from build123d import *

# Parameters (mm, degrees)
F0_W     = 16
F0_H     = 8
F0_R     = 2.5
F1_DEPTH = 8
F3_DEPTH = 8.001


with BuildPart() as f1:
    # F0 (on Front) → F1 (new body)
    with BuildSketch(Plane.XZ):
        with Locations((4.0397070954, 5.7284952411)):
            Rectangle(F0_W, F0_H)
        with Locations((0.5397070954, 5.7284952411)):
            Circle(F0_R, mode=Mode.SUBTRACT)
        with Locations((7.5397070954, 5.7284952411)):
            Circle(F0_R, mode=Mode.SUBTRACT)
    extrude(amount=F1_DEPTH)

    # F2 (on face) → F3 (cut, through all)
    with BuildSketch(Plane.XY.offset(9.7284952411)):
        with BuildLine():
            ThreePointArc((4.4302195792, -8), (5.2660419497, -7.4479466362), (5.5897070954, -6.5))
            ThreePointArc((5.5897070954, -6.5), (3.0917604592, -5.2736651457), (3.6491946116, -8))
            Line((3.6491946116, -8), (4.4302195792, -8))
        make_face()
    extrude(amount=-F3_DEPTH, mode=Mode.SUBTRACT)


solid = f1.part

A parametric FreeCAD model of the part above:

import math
import FreeCAD as App
import Part
import Sketcher

V = App.Vector


def add_polygon(sketch, points):
    """Adds a closed chain of lines whose ends are joined by coincident constraints."""
    first, n = sketch.GeometryCount, len(points)
    for a, b in zip(points, points[1:] + points[:1]):
        sketch.addGeometry(Part.LineSegment(App.Vector(*a, 0), App.Vector(*b, 0)), False)
    for i in range(n):
        sketch.addConstraint(Sketcher.Constraint("Coincident", first + i, 2, first + (i + 1) % n, 1))

doc = App.newDocument("Part")
body = doc.addObject("PartDesign::Body", "Body")

sketch1 = body.newObject("Sketcher::SketchObject", "Sketch")
sketch1.AttachmentSupport = (doc.getObject("XZ_Plane"), [""])
sketch1.MapMode = "FlatFace"
add_polygon(sketch1, [(-4, 9.7), (-4, 1.7), (12, 1.7), (12, 9.7)])
sketch1.addGeometry(Part.Circle(V(0.5, 5.7, 0), V(0, 0, 1), 2.5), False)
sketch1.addGeometry(Part.Circle(V(7.5, 5.7, 0), V(0, 0, 1), 2.5), False)
sketch1.addConstraint(Sketcher.Constraint("Vertical", 0))
sketch1.addConstraint(Sketcher.Constraint("Horizontal", 1))
sketch1.addConstraint(Sketcher.Constraint("Vertical", 2))
sketch1.addConstraint(Sketcher.Constraint("Horizontal", 3))
sketch1.addConstraint(Sketcher.Constraint("Equal", 4, 5))
sketch1.addConstraint(Sketcher.Constraint("Horizontal", 4, 3, 5, 3))
sketch1.addConstraint(Sketcher.Constraint("Diameter", 4, 5.0))
sketch1.addConstraint(Sketcher.Constraint("DistanceX", 1, 1, 1, 2, 16.0))
sketch1.addConstraint(Sketcher.Constraint("DistanceY", 0, 2, 0, 1, 8.0))
sketch1.addConstraint(Sketcher.Constraint("DistanceX", 4, 3, 5, 3, 7.0))
sketch1.addConstraint(Sketcher.Constraint("DistanceY", 0, 2, 4, 3, 4.0))
sketch1.addConstraint(Sketcher.Constraint("DistanceX", 0, 2, 4, 3, 4.5))
sketch1.addConstraint(Sketcher.Constraint("DistanceX", -1, 1, 4, 3, 0.539707))
sketch1.addConstraint(Sketcher.Constraint("DistanceY", -1, 1, 4, 3, 5.728495))
pad1 = body.newObject("PartDesign::Pad", "Pad")
pad1.Profile = sketch1
pad1.Length = 8

sketch2 = body.newObject("Sketcher::SketchObject", "Sketch001")
sketch2.AttachmentSupport = (doc.getObject("XY_Plane"), [""])
sketch2.MapMode = "FlatFace"
sketch2.AttachmentOffset = App.Placement(V(0, 0, 9.728495), App.Rotation())
sketch2.addGeometry(Part.ArcOfCircle(Part.Circle(V(4, -6.5, 0), V(0, 0, 1), 1.6), math.radians(-75), math.radians(0)), False)
sketch2.addGeometry(Part.ArcOfCircle(Part.Circle(V(4, -6.5, 0), V(0, 0, 1), 1.6), math.radians(0), math.radians(255)), False)
sketch2.addGeometry(Part.LineSegment(V(3.6, -8, 0), V(4.4, -8, 0)), False)
sketch2.addConstraint(Sketcher.Constraint("Tangent", 0, 2, 1, 1))
sketch2.addConstraint(Sketcher.Constraint("Coincident", 1, 2, 2, 1))
sketch2.addConstraint(Sketcher.Constraint("Coincident", 2, 2, 0, 1))
sketch2.addConstraint(Sketcher.Constraint("Horizontal", 2))
sketch2.addConstraint(Sketcher.Constraint("Equal", 0, 1))
sketch2.addConstraint(Sketcher.Constraint("Horizontal", 1, 3, 0, 2))
sketch2.addConstraint(Sketcher.Constraint("Radius", 0, 1.55))
sketch2.addConstraint(Sketcher.Constraint("DistanceY", 1, 2, -1, 1, 8.0))
sketch2.addConstraint(Sketcher.Constraint("DistanceY", 0, 3, -1, 1, 6.5))
sketch2.addConstraint(Sketcher.Constraint("DistanceX", -1, 1, 2, 2, 4.43022))
pocket1 = body.newObject("PartDesign::Pocket", "Pocket")
pocket1.Profile = sketch2
pocket1.Type = "ThroughAll"

doc.recompute()
